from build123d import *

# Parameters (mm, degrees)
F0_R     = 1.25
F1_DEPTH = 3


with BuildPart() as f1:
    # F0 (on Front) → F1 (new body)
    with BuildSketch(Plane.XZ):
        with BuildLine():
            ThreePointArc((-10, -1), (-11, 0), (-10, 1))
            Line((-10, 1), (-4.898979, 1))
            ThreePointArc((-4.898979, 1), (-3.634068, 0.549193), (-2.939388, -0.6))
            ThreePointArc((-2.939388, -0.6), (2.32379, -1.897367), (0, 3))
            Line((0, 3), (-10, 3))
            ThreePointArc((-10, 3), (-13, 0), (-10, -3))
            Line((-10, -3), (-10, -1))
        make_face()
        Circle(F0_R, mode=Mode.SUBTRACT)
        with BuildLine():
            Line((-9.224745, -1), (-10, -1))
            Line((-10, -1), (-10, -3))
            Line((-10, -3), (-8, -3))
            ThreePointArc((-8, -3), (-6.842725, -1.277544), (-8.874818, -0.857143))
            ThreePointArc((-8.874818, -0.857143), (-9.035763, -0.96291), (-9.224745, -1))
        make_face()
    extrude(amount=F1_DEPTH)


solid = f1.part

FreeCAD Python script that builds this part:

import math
import FreeCAD as App
import Part
import Sketcher

V = App.Vector
Q = App.Units.Quantity

doc = App.newDocument("Part")
body = doc.addObject("PartDesign::Body", "Body")

# Sketch on XZ plane
sketch1 = body.newObject("Sketcher::SketchObject", "Sketch")
sketch1.AttachmentSupport = (doc.getObject("XZ_Plane"), [""])
sketch1.MapMode = "FlatFace"
sketch1.addGeometry([
    Part.ArcOfCircle(Part.Circle(V(-10, 0, 0), V(0, 0, 1), 1), math.radians(90), math.radians(270)),  # 0
    Part.LineSegment(V(-10, 1, 0), V(-4.9, 1, 0)),  # 1
    Part.ArcOfCircle(Part.Circle(V(-4.9, -1, 0), V(0, 0, 1), 2), math.radians(12), math.radians(90)),  # 2
    Part.ArcOfCircle(Part.Circle(V(0, 0, 0), V(0, 0, 1), 3), math.radians(-168), math.radians(90)),  # 3
    Part.LineSegment(V(0, 3, 0), V(-10, 3, 0)),  # 4
    Part.ArcOfCircle(Part.Circle(V(-10, 0, 0), V(0, 0, 1), 3), math.radians(90), math.radians(270)),  # 5
    Part.LineSegment(V(-10, -3, 0), V(-8, -3, 0)),  # 6
    Part.ArcOfCircle(Part.Circle(V(-8, -1.75, 0), V(0, 0, 1), 1.25), math.radians(-90), math.radians(134)),  # 7
    Part.ArcOfCircle(Part.Circle(V(-9.22, -0.5, 0), V(0, 0, 1), 0.5), math.radians(-90), math.radians(-46)),  # 8
    Part.LineSegment(V(-9.22, -1, 0), V(-10, -1, 0)),  # 9
    Part.Circle(V(0, 0, 0), V(0, 0, 1), 1.25),  # 10
], False)
sketch1.addConstraint([
    Sketcher.Constraint("Tangent", 0, 1, 1, 1),
    Sketcher.Constraint("Tangent", 1, 2, 2, 2),
    Sketcher.Constraint("Tangent", 2, 1, 3, 1),
    Sketcher.Constraint("Tangent", 3, 2, 4, 1),
    Sketcher.Constraint("Tangent", 4, 2, 5, 1),
    Sketcher.Constraint("Tangent", 5, 2, 6, 1),
    Sketcher.Constraint("Tangent", 6, 2, 7, 1),
    Sketcher.Constraint("Coincident", 7, 2, 8, 2),
    Sketcher.Constraint("Tangent", 8, 1, 9, 1),
    Sketcher.Constraint("Tangent", 9, 2, 0, 2),
    Sketcher.Constraint("Horizontal", 1),
    Sketcher.Constraint("Horizontal", 4),
    Sketcher.Constraint("Horizontal", 6),
    Sketcher.Constraint("Horizontal", 9),
    Sketcher.Constraint("Coincident", 3, 3, -1, 1),
    Sketcher.Constraint("Coincident", 10, 3, -1, 1),
    Sketcher.Constraint("Coincident", 5, 3, 0, 3),
    Sketcher.Constraint("Equal", 3, 5),
    Sketcher.Constraint("Equal", 7, 10),
    Sketcher.Constraint("Horizontal", 2, 3, 8, 1),
    Sketcher.Constraint("Radius", 0, Q("1 mm")),
    Sketcher.Constraint("Radius", 3, Q("3 mm")),
    Sketcher.Constraint("Diameter", 10, Q("2.5 mm")),
    Sketcher.Constraint("Radius", 8, Q("0.500002 mm")),
    Sketcher.Constraint("DistanceX", 4, 2, 4, 1, Q("10 mm")),
    Sketcher.Constraint("DistanceX", 6, 1, 6, 2, Q("2 mm")),
    Sketcher.Constraint("DistanceX", 7, 2, -1, 1, Q("8.874818 mm")),
])
pad1 = body.newObject("PartDesign::Pad", "Pad")
pad1.Profile = sketch1
pad1.Length = 3

doc.recompute()
